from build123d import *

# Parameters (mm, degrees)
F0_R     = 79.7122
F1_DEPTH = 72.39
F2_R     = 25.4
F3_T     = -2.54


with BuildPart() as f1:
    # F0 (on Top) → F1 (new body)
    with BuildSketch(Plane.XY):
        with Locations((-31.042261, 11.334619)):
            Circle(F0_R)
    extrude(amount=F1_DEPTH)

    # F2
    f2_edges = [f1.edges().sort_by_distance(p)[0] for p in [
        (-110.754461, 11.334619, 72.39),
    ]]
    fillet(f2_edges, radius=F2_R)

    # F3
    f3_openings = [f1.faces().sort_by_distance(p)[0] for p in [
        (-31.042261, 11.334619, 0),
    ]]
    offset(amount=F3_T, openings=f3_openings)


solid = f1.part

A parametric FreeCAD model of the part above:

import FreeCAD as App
import Part
import Sketcher

V = App.Vector
Q = App.Units.Quantity


def edges_at(feature, points):
    """Names of the edges that pass closest to the given points."""
    edges = feature.Shape.Edges
    near = lambda p: min(range(len(edges)), key=lambda i: edges[i].distToShape(Part.Vertex(*p))[0])
    return sorted({f"Edge{near(p) + 1}" for p in points})


def faces_at(feature, points):
    """Names of the faces that lie closest to the given points."""
    faces = feature.Shape.Faces
    near = lambda p: min(range(len(faces)), key=lambda i: faces[i].distToShape(Part.Vertex(*p))[0])
    return sorted({f"Face{near(p) + 1}" for p in points})

doc = App.newDocument("Part")
body = doc.addObject("PartDesign::Body", "Body")

# Sketch on XY plane
sketch1 = body.newObject("Sketcher::SketchObject", "Sketch")
sketch1.AttachmentSupport = (doc.getObject("XY_Plane"), [""])
sketch1.MapMode = "FlatFace"
sketch1.addGeometry(Part.Circle(V(-31.042261, 11.334619, 0), V(0, 0, 1), 79.7122), False)
sketch1.addConstraint([
    Sketcher.Constraint("Diameter", 0, Q("159.4244 mm")),
    Sketcher.Constraint("DistanceX", 0, 3, -1, 1, Q("31.042261 mm")),
    Sketcher.Constraint("DistanceY", -1, 1, 0, 3, Q("11.334619 mm")),
])
pad1 = body.newObject("PartDesign::Pad", "Pad")
pad1.Profile = sketch1
pad1.Length = Q("2.85 in")
doc.recompute()

fillet = body.newObject("PartDesign::Fillet", "Fillet")
fillet.Base = (pad1, edges_at(pad1, [(-110.754, 11.335, 72.39)]))
fillet.Radius = Q("1 in")
doc.recompute()

thickness = body.newObject("PartDesign::Thickness", "Thickness")
thickness.Base = (fillet, faces_at(fillet, [(-31.042, 11.335, 0)]))
thickness.Value = Q("0.1 in")
thickness.Reversed = True
thickness.Join = "Arc"

doc.recompute()
